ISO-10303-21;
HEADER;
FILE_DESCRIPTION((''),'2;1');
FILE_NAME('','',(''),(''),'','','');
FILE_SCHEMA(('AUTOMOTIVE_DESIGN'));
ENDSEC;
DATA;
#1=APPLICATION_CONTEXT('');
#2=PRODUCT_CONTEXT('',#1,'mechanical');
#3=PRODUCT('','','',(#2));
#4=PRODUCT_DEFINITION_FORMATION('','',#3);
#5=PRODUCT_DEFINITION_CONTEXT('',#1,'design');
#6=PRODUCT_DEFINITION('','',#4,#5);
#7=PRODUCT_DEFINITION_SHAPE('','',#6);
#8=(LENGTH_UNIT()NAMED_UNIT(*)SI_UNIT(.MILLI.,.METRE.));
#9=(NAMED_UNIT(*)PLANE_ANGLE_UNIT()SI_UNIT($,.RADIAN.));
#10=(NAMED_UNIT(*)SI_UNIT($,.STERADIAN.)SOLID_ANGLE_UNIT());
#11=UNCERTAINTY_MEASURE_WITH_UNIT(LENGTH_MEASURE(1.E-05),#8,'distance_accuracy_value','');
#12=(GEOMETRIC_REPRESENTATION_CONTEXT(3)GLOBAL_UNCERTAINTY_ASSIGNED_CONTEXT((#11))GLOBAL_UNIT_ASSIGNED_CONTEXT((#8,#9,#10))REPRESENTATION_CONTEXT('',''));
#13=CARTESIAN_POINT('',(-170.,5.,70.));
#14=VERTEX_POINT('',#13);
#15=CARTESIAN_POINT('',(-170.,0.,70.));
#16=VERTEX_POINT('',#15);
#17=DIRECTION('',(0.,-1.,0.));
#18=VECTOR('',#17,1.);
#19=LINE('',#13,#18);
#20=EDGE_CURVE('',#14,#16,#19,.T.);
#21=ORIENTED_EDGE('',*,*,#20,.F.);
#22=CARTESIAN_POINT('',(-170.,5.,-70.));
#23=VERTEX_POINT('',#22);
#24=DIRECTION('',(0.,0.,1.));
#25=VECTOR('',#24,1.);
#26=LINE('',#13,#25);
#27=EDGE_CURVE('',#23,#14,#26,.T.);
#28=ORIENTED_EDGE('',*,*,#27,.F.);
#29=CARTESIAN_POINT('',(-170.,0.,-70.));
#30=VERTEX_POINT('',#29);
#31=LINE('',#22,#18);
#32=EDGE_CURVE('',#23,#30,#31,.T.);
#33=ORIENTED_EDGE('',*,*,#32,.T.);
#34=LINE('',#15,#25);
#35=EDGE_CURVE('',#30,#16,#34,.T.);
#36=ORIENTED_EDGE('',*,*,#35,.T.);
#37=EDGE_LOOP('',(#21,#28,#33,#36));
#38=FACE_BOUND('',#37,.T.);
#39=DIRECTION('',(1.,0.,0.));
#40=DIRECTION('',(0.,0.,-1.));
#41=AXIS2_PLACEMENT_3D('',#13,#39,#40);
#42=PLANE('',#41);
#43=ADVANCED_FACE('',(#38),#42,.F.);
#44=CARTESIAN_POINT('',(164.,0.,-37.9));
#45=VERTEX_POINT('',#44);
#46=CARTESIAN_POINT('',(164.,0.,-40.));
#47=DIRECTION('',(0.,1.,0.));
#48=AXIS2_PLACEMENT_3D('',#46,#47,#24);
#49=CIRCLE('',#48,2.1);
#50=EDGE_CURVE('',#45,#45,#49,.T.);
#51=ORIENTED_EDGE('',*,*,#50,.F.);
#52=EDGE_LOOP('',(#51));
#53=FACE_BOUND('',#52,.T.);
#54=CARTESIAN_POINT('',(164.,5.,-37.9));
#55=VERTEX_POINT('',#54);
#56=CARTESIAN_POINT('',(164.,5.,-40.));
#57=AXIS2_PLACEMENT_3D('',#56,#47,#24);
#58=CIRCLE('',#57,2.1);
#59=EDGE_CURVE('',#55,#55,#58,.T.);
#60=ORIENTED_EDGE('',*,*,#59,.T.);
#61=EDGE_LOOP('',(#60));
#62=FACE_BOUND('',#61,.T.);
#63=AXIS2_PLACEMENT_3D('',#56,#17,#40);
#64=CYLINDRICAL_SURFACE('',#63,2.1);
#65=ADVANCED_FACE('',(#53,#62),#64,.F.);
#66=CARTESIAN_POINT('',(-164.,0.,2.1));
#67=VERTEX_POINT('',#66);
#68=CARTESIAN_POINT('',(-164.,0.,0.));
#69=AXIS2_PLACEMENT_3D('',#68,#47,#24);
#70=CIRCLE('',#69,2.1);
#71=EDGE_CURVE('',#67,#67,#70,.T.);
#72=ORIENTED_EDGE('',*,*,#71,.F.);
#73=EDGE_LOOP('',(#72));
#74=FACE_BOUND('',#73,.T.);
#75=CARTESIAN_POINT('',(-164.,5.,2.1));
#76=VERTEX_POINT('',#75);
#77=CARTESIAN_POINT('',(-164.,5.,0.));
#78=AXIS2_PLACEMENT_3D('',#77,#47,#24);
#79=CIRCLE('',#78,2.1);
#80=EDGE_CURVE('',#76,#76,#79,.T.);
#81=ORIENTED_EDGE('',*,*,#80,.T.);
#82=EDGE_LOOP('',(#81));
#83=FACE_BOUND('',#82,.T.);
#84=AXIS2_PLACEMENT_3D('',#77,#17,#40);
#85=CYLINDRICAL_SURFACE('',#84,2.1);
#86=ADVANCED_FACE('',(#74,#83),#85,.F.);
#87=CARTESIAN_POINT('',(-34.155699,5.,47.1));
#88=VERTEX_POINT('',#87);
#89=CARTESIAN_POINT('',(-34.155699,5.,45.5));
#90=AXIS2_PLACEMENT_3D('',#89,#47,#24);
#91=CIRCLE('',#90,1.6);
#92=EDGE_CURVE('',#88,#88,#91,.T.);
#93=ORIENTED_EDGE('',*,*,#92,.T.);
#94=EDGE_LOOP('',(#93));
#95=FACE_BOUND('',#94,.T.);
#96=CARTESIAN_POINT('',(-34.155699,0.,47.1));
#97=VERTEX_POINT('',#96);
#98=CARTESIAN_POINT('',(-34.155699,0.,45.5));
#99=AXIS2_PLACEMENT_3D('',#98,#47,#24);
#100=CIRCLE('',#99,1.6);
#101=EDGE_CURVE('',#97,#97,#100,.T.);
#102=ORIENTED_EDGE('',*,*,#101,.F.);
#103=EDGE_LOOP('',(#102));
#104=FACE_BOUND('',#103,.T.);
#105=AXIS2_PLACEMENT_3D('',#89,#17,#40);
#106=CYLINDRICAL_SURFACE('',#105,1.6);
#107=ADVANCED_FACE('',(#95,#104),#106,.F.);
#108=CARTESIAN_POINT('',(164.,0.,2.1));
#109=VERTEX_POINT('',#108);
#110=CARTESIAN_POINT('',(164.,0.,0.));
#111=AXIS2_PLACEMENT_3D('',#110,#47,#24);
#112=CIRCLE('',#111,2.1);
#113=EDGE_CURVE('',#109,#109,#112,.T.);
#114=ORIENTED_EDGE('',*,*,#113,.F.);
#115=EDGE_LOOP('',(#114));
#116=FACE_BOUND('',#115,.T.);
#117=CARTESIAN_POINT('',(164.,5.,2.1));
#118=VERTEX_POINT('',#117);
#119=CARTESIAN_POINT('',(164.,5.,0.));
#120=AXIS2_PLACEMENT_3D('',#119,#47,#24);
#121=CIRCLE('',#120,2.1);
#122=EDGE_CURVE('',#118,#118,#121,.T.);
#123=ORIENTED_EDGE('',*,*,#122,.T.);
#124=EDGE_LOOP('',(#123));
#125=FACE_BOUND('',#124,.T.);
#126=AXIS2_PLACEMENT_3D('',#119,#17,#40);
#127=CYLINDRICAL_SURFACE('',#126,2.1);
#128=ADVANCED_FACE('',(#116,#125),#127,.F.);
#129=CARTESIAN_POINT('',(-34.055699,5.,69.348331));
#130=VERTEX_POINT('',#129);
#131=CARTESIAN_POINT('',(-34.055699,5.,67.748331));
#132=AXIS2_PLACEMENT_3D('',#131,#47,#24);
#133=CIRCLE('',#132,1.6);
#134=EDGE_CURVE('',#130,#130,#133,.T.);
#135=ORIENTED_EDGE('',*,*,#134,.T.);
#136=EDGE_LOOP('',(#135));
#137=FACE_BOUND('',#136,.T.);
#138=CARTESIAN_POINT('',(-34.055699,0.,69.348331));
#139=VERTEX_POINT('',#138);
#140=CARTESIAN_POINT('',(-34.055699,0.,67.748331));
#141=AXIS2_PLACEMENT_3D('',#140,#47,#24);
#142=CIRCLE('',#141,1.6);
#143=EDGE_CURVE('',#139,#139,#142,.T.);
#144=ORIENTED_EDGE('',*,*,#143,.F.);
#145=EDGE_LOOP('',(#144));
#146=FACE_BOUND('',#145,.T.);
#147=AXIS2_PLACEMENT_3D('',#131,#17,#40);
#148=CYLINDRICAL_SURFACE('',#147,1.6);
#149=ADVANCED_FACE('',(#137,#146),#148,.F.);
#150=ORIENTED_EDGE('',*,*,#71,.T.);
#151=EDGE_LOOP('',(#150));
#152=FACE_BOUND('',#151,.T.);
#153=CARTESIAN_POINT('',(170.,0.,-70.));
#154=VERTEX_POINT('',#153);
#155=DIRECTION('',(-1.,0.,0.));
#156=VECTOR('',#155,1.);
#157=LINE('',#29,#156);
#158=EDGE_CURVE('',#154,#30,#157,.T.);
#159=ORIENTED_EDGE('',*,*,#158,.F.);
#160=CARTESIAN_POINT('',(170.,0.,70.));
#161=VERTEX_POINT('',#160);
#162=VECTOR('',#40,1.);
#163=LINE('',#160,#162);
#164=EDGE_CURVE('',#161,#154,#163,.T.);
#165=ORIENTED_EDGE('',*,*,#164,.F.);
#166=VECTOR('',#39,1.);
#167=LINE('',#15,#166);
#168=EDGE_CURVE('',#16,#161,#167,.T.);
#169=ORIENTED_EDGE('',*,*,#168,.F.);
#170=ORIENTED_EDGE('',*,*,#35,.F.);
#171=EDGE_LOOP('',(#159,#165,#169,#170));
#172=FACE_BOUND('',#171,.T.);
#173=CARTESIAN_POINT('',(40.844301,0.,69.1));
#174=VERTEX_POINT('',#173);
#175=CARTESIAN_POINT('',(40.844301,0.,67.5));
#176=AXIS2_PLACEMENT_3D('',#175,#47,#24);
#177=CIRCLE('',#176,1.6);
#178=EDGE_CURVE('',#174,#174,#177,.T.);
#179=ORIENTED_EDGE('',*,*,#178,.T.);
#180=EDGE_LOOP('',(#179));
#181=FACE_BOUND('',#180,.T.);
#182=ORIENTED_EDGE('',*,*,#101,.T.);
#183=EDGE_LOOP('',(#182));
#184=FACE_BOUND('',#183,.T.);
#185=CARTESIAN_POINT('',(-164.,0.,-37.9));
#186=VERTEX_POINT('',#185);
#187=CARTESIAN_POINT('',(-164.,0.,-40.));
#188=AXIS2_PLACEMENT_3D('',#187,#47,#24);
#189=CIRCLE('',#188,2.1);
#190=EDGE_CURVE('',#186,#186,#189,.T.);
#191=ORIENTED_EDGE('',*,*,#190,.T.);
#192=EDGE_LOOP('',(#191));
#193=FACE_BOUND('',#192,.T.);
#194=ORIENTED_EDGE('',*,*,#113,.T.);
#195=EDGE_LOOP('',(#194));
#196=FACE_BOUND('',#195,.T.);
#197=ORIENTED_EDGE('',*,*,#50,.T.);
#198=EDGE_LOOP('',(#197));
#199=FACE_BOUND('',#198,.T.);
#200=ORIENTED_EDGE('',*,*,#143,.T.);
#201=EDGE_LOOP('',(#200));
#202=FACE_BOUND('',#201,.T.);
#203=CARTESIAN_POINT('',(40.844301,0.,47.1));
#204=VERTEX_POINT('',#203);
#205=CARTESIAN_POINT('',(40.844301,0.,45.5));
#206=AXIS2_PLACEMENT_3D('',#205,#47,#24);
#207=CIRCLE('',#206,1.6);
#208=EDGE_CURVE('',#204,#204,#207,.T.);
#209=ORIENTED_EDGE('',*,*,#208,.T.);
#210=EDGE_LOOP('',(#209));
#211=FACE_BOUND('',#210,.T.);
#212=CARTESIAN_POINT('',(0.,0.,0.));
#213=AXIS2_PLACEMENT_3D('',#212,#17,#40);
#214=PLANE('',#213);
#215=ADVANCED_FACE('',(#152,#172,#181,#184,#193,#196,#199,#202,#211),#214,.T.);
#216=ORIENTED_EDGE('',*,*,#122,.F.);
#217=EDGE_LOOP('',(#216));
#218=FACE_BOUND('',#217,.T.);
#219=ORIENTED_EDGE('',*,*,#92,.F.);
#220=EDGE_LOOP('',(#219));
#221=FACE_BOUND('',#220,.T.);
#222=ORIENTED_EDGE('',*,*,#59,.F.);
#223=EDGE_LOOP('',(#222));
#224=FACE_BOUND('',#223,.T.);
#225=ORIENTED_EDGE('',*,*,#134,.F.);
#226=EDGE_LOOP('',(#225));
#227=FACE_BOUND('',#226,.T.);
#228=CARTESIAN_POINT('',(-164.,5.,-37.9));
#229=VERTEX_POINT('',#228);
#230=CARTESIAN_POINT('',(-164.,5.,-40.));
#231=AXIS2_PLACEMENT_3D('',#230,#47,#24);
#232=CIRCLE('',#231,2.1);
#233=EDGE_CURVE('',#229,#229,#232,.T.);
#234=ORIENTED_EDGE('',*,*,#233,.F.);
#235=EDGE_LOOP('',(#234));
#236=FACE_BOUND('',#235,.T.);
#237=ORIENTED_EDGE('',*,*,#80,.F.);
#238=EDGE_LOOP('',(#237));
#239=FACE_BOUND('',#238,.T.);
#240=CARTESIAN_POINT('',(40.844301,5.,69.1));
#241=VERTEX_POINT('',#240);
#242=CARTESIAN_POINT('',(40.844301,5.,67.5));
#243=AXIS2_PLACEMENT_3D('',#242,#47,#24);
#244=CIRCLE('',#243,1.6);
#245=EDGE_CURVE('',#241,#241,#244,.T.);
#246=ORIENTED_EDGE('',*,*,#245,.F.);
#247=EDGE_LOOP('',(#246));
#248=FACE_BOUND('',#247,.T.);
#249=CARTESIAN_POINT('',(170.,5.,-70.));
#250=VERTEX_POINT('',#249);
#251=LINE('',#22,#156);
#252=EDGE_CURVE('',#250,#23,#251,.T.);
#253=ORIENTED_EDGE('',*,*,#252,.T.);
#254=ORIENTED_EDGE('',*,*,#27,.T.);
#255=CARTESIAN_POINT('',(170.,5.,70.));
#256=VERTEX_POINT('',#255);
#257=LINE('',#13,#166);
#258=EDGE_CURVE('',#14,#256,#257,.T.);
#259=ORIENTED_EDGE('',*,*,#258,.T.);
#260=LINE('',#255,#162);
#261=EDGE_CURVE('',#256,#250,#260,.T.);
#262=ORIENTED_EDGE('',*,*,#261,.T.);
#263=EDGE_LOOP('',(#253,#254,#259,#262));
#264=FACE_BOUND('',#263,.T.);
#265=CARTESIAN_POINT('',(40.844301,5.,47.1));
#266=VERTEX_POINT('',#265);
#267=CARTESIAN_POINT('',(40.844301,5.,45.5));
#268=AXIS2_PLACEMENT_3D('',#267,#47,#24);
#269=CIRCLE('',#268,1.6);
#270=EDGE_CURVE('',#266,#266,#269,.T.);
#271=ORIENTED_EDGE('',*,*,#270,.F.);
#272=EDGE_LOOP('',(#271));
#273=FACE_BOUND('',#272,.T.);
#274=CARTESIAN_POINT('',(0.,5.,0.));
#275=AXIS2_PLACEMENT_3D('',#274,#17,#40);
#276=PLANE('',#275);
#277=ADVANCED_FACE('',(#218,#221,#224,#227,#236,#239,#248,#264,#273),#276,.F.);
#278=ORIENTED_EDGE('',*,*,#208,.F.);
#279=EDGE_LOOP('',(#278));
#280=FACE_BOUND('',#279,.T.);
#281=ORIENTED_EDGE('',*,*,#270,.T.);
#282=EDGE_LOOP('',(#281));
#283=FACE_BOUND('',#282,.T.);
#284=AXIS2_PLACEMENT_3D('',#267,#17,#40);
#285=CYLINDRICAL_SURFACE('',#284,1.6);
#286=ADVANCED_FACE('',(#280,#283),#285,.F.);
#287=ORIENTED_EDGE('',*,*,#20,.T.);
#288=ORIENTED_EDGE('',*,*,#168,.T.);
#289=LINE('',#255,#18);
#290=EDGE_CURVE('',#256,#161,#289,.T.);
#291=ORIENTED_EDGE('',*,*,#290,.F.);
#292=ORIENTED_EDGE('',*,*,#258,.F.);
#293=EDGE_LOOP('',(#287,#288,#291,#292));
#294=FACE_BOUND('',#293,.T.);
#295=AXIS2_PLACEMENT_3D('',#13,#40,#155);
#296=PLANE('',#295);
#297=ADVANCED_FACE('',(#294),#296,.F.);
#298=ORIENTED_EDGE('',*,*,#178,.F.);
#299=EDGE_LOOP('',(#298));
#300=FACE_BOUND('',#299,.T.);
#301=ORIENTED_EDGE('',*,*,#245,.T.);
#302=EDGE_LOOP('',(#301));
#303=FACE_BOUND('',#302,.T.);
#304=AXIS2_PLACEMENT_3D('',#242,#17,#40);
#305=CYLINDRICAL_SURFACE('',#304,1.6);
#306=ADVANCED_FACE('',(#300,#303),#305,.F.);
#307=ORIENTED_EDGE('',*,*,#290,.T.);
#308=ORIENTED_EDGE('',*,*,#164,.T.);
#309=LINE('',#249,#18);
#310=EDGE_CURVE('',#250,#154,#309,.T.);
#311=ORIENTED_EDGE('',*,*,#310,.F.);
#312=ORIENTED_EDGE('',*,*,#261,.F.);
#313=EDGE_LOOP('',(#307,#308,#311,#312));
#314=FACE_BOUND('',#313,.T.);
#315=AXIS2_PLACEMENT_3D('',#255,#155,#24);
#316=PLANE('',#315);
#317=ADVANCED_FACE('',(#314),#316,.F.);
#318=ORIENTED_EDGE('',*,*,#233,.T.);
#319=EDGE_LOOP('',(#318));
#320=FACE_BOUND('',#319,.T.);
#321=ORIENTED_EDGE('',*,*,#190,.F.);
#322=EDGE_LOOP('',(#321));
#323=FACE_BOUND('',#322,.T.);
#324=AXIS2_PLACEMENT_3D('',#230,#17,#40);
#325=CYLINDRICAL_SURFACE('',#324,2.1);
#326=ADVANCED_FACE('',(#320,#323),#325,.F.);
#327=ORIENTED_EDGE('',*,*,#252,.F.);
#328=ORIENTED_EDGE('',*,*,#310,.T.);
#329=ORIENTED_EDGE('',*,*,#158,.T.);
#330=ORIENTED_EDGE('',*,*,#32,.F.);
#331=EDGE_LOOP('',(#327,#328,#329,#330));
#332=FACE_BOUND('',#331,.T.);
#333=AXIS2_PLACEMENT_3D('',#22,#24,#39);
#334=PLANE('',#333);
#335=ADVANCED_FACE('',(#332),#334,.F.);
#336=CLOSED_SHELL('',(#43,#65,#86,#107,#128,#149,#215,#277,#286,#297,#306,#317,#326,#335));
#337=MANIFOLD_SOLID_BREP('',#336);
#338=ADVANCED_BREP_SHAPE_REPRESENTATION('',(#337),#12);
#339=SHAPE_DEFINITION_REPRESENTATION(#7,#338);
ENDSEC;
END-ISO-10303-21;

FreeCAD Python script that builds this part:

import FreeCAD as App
import Part
import Sketcher

doc = App.newDocument("Part")
body = doc.addObject("PartDesign::Body", "Body")

# Sketch on XZ plane
sketch1 = body.newObject("Sketcher::SketchObject", "Sketch")
sketch1.AttachmentSupport = (doc.getObject("XZ_Plane"), [""])
sketch1.MapMode = "FlatFace"
sketch1.addGeometry([
    Part.LineSegment(App.Vector(-170, -70, 0), App.Vector(-170, 70, 0)),  # 0
    Part.LineSegment(App.Vector(-170, 70, 0), App.Vector(170, 70, 0)),  # 1
    Part.LineSegment(App.Vector(170, 70, 0), App.Vector(170, -70, 0)),  # 2
    Part.LineSegment(App.Vector(170, -70, 0), App.Vector(-170, -70, 0)),  # 3
    Part.Circle(App.Vector(-34.1, 67.7, 0), App.Vector(0, 0, 1), 1.6),  # 4
    Part.Circle(App.Vector(-34.2, 45.5, 0), App.Vector(0, 0, 1), 1.6),  # 5
    Part.Circle(App.Vector(40.8, 67.5, 0), App.Vector(0, 0, 1), 1.6),  # 6
    Part.Circle(App.Vector(40.8, 45.5, 0), App.Vector(0, 0, 1), 1.6),  # 7
    Part.Circle(App.Vector(-164, 0, 0), App.Vector(0, 0, 1), 2.1),  # 8
    Part.Circle(App.Vector(-164, -40, 0), App.Vector(0, 0, 1), 2.1),  # 9
    Part.Circle(App.Vector(164, 0, 0), App.Vector(0, 0, 1), 2.1),  # 10
    Part.Circle(App.Vector(164, -40, 0), App.Vector(0, 0, 1), 2.1),  # 11
], False)
sketch1.addConstraint([
    Sketcher.Constraint("Coincident", 0, 2, 1, 1),
    Sketcher.Constraint("Coincident", 1, 2, 2, 1),
    Sketcher.Constraint("Coincident", 2, 2, 3, 1),
    Sketcher.Constraint("Coincident", 3, 2, 0, 1),
    Sketcher.Constraint("Vertical", 0),
    Sketcher.Constraint("Horizontal", 1),
    Sketcher.Constraint("Vertical", 2),
    Sketcher.Constraint("Horizontal", 3),
    Sketcher.Constraint("Equal", 4, 5),
    Sketcher.Constraint("Equal", 5, 6),
    Sketcher.Constraint("Equal", 6, 7),
    Sketcher.Constraint("Equal", 8, 9),
    Sketcher.Constraint("Equal", 9, 10),
    Sketcher.Constraint("Equal", 10, 11),
    Sketcher.Constraint("Symmetric", 8, 3, 10, 3, -1, 1),
    Sketcher.Constraint("Symmetric", 0, 2, 2, 2, -1, 1),
    Sketcher.Constraint("Symmetric", 9, 3, 11, 3, -2),
    Sketcher.Constraint("PointOnObject", 8, 3, -1),
    Sketcher.Constraint("Horizontal", 5, 3, 7, 3),
    Sketcher.Constraint("Vertical", 6, 3, 7, 3),
    Sketcher.Constraint("Vertical", 8, 3, 9, 3),
    Sketcher.Constraint("Diameter", 4, 3.2),
    Sketcher.Constraint("Diameter", 8, 4.2),
    Sketcher.Constraint("DistanceX", 1, 1, 1, 2, 340.0),
    Sketcher.Constraint("DistanceY", 0, 1, 0, 2, 140.0),
    Sketcher.Constraint("DistanceX", 8, 3, -1, 1, 164.0),
    Sketcher.Constraint("DistanceY", 9, 3, -1, 1, 40.0),
    Sketcher.Constraint("DistanceX", 5, 3, 6, 3, 75.0),
    Sketcher.Constraint("DistanceY", 5, 3, 6, 3, 22.0),
    Sketcher.Constraint("DistanceY", -1, 1, 5, 3, 45.5),
    Sketcher.Constraint("DistanceX", 5, 3, 4, 3, 0.1),
    Sketcher.Constraint("DistanceX", 4, 3, -1, 1, 34.055699),
    Sketcher.Constraint("DistanceY", -1, 1, 4, 3, 67.748331),
])
pad1 = body.newObject("PartDesign::Pad", "Pad")
pad1.Profile = sketch1
pad1.Length = 5
pad1.Reversed = True

doc.recompute()
